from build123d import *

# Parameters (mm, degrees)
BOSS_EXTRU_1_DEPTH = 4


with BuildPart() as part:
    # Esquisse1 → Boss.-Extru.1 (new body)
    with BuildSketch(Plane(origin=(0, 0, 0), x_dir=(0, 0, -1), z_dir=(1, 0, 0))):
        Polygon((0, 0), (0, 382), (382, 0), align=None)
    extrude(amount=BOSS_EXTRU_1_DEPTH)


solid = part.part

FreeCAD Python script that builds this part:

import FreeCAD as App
import Part
import Sketcher

V = App.Vector
Q = App.Units.Quantity


def add_polygon(sketch, points):
    """Adds a closed chain of lines whose ends are joined by coincident constraints."""
    first, n = sketch.GeometryCount, len(points)
    for a, b in zip(points, points[1:] + points[:1]):
        sketch.addGeometry(Part.LineSegment(App.Vector(*a, 0), App.Vector(*b, 0)), False)
    for i in range(n):
        sketch.addConstraint(Sketcher.Constraint("Coincident", first + i, 2, first + (i + 1) % n, 1))

doc = App.newDocument("Part")
body = doc.addObject("PartDesign::Body", "Body")

sketch1 = body.newObject("Sketcher::SketchObject", "Sketch")
sketch1.AttachmentSupport = (doc.getObject("YZ_Plane"), [""])
sketch1.MapMode = "FlatFace"
add_polygon(sketch1, [(382, 0), (0, 0), (0, -382)])
sketch1.addConstraint([
    Sketcher.Constraint("Horizontal", 0),
    Sketcher.Constraint("Vertical", 1),
    Sketcher.Constraint("Coincident", 0, 2, -1, 1),
    Sketcher.Constraint("Equal", 0, 1),
    Sketcher.Constraint("DistanceX", 0, 2, 0, 1, Q("382 mm")),
])
pad1 = body.newObject("PartDesign::Pad", "Pad")
pad1.Profile = sketch1
pad1.Length = 4

doc.recompute()
